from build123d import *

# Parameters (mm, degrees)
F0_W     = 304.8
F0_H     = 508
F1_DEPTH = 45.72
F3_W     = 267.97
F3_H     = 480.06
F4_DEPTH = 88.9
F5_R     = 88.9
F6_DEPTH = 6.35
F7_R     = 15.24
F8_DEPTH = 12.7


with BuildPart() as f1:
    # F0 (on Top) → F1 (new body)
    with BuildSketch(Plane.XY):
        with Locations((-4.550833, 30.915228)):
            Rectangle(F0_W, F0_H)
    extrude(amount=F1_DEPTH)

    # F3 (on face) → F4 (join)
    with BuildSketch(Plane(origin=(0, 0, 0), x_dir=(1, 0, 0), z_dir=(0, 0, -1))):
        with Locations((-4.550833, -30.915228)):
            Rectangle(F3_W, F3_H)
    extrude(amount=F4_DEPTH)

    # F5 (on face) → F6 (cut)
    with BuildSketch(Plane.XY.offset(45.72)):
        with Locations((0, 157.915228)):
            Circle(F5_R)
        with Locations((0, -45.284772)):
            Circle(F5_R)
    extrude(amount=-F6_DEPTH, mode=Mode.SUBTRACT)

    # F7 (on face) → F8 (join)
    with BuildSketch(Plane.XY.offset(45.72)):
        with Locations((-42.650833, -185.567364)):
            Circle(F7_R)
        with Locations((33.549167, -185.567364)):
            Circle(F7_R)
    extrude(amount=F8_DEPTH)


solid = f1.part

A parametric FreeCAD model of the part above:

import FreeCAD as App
import Part
import Sketcher
Q = App.Units.Quantity


def add_polygon(sketch, points):
    """Adds a closed chain of lines whose ends are joined by coincident constraints."""
    first, n = sketch.GeometryCount, len(points)
    for a, b in zip(points, points[1:] + points[:1]):
        sketch.addGeometry(Part.LineSegment(App.Vector(*a, 0), App.Vector(*b, 0)), False)
    for i in range(n):
        sketch.addConstraint(Sketcher.Constraint("Coincident", first + i, 2, first + (i + 1) % n, 1))

doc = App.newDocument("Part")
body = doc.addObject("PartDesign::Body", "Body")

# Sketch on XY plane
sketch1 = doc.addObject("Sketcher::SketchObject", "Sketch")
body.addObject(sketch1)
sketch1.AttachmentSupport = (doc.XY_Plane, [""])
sketch1.MapMode = "FlatFace"
add_polygon(sketch1, [(-157, 285), (-157, -223), (148, -223), (148, 285)])  # lines 0-3
sketch1.addConstraint([
    Sketcher.Constraint("Vertical", 0),
    Sketcher.Constraint("Horizontal", 1),
    Sketcher.Constraint("Vertical", 2),
    Sketcher.Constraint("Horizontal", 3),
    Sketcher.Constraint("DistanceX", 1, 1, 1, 2, Q("12 in")),
    Sketcher.Constraint("DistanceY", 0, 2, 0, 1, Q("20 in")),
    Sketcher.Constraint("DistanceY", 0, 2, -1, 1, Q("223.084772 mm")),
    Sketcher.Constraint("DistanceX", 0, 2, -1, 1, Q("156.950833 mm")),
])
pad1 = doc.addObject("PartDesign::Pad", "Pad")
body.addObject(pad1)
pad1.Profile = sketch1
pad1.Length = Q("1.8 in")

# Sketch on XY plane
sketch2 = doc.addObject("Sketcher::SketchObject", "Sketch001")
body.addObject(sketch2)
sketch2.AttachmentSupport = (doc.XY_Plane, [""])
sketch2.MapMode = "FlatFace"
add_polygon(sketch2, [(-139, -209), (-139, 271), (129, 271), (129, -209)])  # lines 0-3
sketch2.addConstraint([
    Sketcher.Constraint("Vertical", 0),
    Sketcher.Constraint("Horizontal", 1),
    Sketcher.Constraint("Vertical", 2),
    Sketcher.Constraint("Horizontal", 3),
    Sketcher.Constraint("DistanceY", 0, 1, 0, 2, Q("18.9 in")),
    Sketcher.Constraint("DistanceX", 1, 1, 1, 2, Q("10.55 in")),
    Sketcher.Constraint("DistanceY", -1, 1, 0, 2, Q("270.945228 mm")),
    Sketcher.Constraint("DistanceX", 0, 2, -1, 1, Q("138.535833 mm")),
])
pad2 = doc.addObject("PartDesign::Pad", "Pad001")
body.addObject(pad2)
pad2.Profile = sketch2
pad2.Length = Q("3.5 in")
pad2.Reversed = True

# Sketch on XY plane
sketch3 = doc.addObject("Sketcher::SketchObject", "Sketch002")
body.addObject(sketch3)
sketch3.AttachmentSupport = (doc.XY_Plane, [""])
sketch3.MapMode = "FlatFace"
sketch3.AttachmentOffset = App.Placement(App.Vector(0, 0, 1.8 * 25.4), App.Rotation())
sketch3.addGeometry([
    Part.Circle(App.Vector(0, 158, 0), App.Vector(0, 0, 1), 89),
    Part.Circle(App.Vector(0, -45, 0), App.Vector(0, 0, 1), 89),
], False)
sketch3.addConstraint([
    Sketcher.Constraint("Equal", 0, 1),
    Sketcher.Constraint("PointOnObject", 0, 3, -2),
    Sketcher.Constraint("PointOnObject", 1, 3, -2),
    Sketcher.Constraint("Diameter", 0, Q("7 in")),
    Sketcher.Constraint("DistanceY", 1, 3, 0, 3, Q("8 in")),
    Sketcher.Constraint("DistanceY", -1, 1, 0, 3, Q("157.915228 mm")),
])
pocket1 = doc.addObject("PartDesign::Pocket", "Pocket")
body.addObject(pocket1)
pocket1.Profile = sketch3
pocket1.Length = Q("0.25 in")

# Sketch on XY plane
sketch4 = doc.addObject("Sketcher::SketchObject", "Sketch003")
body.addObject(sketch4)
sketch4.AttachmentSupport = (doc.XY_Plane, [""])
sketch4.MapMode = "FlatFace"
sketch4.AttachmentOffset = App.Placement(App.Vector(0, 0, 1.8 * 25.4), App.Rotation())
sketch4.addGeometry([
    Part.Circle(App.Vector(-43, -186, 0), App.Vector(0, 0, 1), 15),
    Part.Circle(App.Vector(34, -186, 0), App.Vector(0, 0, 1), 15),
], False)
sketch4.addConstraint([
    Sketcher.Constraint("Equal", 0, 1),
    Sketcher.Constraint("Horizontal", 0, 3, 1, 3),
    Sketcher.Constraint("Diameter", 0, Q("1.2 in")),
    Sketcher.Constraint("DistanceX", 0, 3, 1, 3, Q("3 in")),
    Sketcher.Constraint("DistanceX", 0, 3, -1, 1, Q("42.650833 mm")),
    Sketcher.Constraint("DistanceY", 0, 3, -1, 1, Q("185.567364 mm")),
])
pad3 = doc.addObject("PartDesign::Pad", "Pad002")
body.addObject(pad3)
pad3.Profile = sketch4
pad3.Length = Q("0.5 in")

doc.recompute()
